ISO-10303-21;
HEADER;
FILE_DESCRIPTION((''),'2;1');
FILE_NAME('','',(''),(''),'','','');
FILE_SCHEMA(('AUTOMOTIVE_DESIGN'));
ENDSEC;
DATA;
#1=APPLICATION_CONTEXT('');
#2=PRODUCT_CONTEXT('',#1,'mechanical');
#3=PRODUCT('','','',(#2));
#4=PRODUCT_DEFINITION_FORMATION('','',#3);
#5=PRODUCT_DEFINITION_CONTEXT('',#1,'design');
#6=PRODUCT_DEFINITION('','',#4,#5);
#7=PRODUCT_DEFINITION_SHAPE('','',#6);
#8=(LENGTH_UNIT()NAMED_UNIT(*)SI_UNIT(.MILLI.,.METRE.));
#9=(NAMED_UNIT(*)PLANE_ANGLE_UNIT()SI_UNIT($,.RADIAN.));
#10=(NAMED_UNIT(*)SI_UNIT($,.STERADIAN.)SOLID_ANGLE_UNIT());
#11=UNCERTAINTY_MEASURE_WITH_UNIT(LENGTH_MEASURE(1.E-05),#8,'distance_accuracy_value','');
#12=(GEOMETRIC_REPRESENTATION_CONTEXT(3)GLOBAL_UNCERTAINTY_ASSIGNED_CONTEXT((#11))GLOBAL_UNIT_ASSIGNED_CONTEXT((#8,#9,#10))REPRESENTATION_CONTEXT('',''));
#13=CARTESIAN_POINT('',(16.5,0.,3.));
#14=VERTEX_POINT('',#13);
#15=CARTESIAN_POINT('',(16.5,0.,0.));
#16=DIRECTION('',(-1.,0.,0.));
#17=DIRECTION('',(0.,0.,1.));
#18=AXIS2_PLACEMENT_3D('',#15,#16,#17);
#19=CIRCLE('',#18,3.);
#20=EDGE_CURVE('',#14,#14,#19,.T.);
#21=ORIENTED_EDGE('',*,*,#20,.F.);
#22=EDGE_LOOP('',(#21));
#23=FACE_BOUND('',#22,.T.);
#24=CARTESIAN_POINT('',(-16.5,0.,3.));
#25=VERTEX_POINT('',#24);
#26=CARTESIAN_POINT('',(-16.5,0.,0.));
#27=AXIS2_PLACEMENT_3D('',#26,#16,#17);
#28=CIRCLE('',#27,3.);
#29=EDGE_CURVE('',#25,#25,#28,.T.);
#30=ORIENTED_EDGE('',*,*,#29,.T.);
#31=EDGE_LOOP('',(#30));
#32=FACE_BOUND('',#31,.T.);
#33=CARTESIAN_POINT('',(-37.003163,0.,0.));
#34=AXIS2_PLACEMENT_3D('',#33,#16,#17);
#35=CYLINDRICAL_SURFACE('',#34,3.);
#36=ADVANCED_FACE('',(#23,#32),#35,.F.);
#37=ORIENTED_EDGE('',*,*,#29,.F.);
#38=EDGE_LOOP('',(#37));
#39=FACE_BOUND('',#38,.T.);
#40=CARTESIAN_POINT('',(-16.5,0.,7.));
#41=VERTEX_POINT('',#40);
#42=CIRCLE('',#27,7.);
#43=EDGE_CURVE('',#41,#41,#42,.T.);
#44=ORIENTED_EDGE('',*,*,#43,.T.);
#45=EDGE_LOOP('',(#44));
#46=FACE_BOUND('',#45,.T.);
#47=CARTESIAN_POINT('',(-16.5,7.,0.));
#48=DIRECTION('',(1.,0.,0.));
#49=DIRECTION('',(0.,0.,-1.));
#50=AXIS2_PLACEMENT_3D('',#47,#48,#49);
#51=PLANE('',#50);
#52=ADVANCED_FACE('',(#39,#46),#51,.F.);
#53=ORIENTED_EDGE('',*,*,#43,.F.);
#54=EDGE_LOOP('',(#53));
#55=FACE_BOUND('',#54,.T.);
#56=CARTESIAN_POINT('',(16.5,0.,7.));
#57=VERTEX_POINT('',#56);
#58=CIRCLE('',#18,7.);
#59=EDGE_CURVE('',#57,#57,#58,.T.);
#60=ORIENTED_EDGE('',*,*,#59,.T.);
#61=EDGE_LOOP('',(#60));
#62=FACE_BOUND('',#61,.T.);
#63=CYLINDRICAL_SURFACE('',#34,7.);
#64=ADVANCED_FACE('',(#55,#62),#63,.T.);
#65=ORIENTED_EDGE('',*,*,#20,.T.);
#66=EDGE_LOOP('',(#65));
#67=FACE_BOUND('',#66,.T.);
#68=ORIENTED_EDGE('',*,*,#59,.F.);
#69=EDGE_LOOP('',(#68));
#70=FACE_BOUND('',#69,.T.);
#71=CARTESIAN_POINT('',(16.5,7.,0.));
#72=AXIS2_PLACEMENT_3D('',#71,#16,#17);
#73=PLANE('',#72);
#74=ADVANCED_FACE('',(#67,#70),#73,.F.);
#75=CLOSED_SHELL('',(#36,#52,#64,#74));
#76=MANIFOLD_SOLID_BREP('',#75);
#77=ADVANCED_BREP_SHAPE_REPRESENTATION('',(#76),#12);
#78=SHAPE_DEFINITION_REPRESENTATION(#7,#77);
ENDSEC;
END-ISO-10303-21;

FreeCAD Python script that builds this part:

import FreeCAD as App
import Part
import Sketcher

V = App.Vector


def add_polygon(sketch, points):
    """Adds a closed chain of lines whose ends are joined by coincident constraints."""
    first, n = sketch.GeometryCount, len(points)
    for a, b in zip(points, points[1:] + points[:1]):
        sketch.addGeometry(Part.LineSegment(App.Vector(*a, 0), App.Vector(*b, 0)), False)
    for i in range(n):
        sketch.addConstraint(Sketcher.Constraint("Coincident", first + i, 2, first + (i + 1) % n, 1))

doc = App.newDocument("Part")
params = doc.addObject("Spreadsheet::Sheet", "Params")
for row, (alias, value) in enumerate([
    ("sketch1_width", "33 mm"),
    ("sketch1_height", "4 mm"),
    ("revolution_angle", "360 deg"),
], start=1):
    params.set(f"A{row}", alias)
    params.set(f"B{row}", "=" + value)
    params.setAlias(f"B{row}", alias)

body = doc.addObject("PartDesign::Body", "Body")

# Sketch on XY plane
sketch1 = body.newObject("Sketcher::SketchObject", "Sketch")
sketch1.AttachmentSupport = (doc.getObject("XY_Plane"), [""])
sketch1.MapMode = "FlatFace"
add_polygon(sketch1, [(-16.5, 7), (-16.5, 3), (16.5, 3), (16.5, 7)])  # lines 0-3
sketch1.addConstraint([
    Sketcher.Constraint("Vertical", 0),
    Sketcher.Constraint("Horizontal", 1),
    Sketcher.Constraint("Vertical", 2),
    Sketcher.Constraint("Horizontal", 3),
    Sketcher.Constraint("DistanceX", 1, 1, 1, 2, 33.0),
    Sketcher.Constraint("DistanceY", 0, 2, 0, 1, 4.0),
    Sketcher.Constraint("DistanceY", -1, 1, 0, 2, 3.0),
    Sketcher.Constraint("DistanceX", 0, 2, -1, 1, 16.5),
])
sketch1.setExpression("Constraints[8]", "Params.sketch1_width")
sketch1.setExpression("Constraints[9]", "Params.sketch1_height")
revolution = body.newObject("PartDesign::Revolution", "Revolution")
revolution.Profile = sketch1
revolution.ReferenceAxis = (sketch1, ["H_Axis"])
revolution.setExpression("Angle", "Params.revolution_angle")

doc.recompute()
